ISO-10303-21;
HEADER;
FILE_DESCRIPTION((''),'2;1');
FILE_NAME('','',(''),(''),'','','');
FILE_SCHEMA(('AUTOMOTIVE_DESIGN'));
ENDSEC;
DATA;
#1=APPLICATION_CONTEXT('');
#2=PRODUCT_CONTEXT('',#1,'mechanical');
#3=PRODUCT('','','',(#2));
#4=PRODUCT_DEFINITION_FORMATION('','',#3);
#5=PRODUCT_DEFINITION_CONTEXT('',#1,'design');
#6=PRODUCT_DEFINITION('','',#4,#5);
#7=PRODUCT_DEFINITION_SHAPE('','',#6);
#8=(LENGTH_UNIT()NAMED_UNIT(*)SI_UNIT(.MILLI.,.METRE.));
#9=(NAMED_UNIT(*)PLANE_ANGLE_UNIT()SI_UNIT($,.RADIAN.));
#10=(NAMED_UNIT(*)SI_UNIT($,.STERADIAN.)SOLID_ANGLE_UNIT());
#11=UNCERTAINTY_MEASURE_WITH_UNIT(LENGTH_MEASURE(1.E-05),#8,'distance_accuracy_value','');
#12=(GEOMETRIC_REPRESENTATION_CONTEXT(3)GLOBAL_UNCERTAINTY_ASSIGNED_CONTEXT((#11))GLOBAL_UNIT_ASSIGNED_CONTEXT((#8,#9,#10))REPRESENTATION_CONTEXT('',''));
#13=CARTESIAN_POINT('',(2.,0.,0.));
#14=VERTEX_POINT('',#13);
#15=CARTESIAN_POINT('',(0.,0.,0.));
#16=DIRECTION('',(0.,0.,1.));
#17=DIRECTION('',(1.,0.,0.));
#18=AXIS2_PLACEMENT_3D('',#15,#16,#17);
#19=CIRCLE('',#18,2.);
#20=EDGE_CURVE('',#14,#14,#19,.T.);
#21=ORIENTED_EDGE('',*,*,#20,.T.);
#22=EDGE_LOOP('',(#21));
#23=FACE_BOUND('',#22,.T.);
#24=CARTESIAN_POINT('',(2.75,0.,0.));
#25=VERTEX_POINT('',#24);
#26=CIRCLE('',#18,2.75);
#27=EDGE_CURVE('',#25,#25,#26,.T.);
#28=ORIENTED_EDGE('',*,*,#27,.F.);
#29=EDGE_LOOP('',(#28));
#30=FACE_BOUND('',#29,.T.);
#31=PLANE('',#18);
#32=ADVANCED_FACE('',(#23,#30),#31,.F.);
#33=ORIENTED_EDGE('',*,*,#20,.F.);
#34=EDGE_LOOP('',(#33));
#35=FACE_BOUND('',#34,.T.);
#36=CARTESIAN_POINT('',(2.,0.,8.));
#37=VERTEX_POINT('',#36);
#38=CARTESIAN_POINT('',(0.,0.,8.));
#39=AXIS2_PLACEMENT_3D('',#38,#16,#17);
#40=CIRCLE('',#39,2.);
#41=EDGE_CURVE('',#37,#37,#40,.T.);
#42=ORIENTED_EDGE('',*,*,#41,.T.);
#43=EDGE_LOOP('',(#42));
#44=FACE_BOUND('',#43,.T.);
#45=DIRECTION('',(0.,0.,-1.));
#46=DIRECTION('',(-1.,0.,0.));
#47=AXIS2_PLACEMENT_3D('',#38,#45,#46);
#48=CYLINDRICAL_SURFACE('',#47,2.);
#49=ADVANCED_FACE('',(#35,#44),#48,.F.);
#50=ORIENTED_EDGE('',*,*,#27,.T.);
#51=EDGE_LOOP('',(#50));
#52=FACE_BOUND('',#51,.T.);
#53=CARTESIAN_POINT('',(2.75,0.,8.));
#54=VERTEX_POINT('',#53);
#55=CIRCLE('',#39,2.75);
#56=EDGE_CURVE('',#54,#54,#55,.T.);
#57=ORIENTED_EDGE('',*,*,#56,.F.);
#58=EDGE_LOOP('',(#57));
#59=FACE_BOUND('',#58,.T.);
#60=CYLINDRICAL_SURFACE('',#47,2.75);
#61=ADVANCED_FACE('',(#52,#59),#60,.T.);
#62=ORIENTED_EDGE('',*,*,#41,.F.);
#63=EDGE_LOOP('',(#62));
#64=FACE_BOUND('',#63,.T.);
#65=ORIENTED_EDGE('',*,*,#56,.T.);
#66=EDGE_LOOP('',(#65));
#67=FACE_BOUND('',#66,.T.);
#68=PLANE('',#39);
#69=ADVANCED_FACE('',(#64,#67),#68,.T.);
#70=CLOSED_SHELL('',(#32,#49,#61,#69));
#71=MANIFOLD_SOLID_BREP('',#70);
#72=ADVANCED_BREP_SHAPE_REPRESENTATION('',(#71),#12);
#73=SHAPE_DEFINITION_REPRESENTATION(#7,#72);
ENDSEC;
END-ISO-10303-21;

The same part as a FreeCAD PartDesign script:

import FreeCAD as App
import Part
import Sketcher

doc = App.newDocument("Part")
body = doc.addObject("PartDesign::Body", "Body")

sketch1 = body.newObject("Sketcher::SketchObject", "Sketch")
sketch1.AttachmentSupport = (doc.getObject("XY_Plane"), [""])
sketch1.MapMode = "FlatFace"
sketch1.addGeometry([
    Part.Circle(App.Vector(0, 0, 0), App.Vector(0, 0, 1), 2.8),
    Part.Circle(App.Vector(0, 0, 0), App.Vector(0, 0, 1), 2),
], False)
sketch1.addConstraint([
    Sketcher.Constraint("Coincident", 0, 3, -1, 1),
    Sketcher.Constraint("Coincident", 1, 3, -1, 1),
    Sketcher.Constraint("Diameter", 1, 4.0),
    Sketcher.Constraint("Diameter", 0, 5.5),
])
pad1 = body.newObject("PartDesign::Pad", "Pad")
pad1.Profile = sketch1
pad1.Length = 8

doc.recompute()
